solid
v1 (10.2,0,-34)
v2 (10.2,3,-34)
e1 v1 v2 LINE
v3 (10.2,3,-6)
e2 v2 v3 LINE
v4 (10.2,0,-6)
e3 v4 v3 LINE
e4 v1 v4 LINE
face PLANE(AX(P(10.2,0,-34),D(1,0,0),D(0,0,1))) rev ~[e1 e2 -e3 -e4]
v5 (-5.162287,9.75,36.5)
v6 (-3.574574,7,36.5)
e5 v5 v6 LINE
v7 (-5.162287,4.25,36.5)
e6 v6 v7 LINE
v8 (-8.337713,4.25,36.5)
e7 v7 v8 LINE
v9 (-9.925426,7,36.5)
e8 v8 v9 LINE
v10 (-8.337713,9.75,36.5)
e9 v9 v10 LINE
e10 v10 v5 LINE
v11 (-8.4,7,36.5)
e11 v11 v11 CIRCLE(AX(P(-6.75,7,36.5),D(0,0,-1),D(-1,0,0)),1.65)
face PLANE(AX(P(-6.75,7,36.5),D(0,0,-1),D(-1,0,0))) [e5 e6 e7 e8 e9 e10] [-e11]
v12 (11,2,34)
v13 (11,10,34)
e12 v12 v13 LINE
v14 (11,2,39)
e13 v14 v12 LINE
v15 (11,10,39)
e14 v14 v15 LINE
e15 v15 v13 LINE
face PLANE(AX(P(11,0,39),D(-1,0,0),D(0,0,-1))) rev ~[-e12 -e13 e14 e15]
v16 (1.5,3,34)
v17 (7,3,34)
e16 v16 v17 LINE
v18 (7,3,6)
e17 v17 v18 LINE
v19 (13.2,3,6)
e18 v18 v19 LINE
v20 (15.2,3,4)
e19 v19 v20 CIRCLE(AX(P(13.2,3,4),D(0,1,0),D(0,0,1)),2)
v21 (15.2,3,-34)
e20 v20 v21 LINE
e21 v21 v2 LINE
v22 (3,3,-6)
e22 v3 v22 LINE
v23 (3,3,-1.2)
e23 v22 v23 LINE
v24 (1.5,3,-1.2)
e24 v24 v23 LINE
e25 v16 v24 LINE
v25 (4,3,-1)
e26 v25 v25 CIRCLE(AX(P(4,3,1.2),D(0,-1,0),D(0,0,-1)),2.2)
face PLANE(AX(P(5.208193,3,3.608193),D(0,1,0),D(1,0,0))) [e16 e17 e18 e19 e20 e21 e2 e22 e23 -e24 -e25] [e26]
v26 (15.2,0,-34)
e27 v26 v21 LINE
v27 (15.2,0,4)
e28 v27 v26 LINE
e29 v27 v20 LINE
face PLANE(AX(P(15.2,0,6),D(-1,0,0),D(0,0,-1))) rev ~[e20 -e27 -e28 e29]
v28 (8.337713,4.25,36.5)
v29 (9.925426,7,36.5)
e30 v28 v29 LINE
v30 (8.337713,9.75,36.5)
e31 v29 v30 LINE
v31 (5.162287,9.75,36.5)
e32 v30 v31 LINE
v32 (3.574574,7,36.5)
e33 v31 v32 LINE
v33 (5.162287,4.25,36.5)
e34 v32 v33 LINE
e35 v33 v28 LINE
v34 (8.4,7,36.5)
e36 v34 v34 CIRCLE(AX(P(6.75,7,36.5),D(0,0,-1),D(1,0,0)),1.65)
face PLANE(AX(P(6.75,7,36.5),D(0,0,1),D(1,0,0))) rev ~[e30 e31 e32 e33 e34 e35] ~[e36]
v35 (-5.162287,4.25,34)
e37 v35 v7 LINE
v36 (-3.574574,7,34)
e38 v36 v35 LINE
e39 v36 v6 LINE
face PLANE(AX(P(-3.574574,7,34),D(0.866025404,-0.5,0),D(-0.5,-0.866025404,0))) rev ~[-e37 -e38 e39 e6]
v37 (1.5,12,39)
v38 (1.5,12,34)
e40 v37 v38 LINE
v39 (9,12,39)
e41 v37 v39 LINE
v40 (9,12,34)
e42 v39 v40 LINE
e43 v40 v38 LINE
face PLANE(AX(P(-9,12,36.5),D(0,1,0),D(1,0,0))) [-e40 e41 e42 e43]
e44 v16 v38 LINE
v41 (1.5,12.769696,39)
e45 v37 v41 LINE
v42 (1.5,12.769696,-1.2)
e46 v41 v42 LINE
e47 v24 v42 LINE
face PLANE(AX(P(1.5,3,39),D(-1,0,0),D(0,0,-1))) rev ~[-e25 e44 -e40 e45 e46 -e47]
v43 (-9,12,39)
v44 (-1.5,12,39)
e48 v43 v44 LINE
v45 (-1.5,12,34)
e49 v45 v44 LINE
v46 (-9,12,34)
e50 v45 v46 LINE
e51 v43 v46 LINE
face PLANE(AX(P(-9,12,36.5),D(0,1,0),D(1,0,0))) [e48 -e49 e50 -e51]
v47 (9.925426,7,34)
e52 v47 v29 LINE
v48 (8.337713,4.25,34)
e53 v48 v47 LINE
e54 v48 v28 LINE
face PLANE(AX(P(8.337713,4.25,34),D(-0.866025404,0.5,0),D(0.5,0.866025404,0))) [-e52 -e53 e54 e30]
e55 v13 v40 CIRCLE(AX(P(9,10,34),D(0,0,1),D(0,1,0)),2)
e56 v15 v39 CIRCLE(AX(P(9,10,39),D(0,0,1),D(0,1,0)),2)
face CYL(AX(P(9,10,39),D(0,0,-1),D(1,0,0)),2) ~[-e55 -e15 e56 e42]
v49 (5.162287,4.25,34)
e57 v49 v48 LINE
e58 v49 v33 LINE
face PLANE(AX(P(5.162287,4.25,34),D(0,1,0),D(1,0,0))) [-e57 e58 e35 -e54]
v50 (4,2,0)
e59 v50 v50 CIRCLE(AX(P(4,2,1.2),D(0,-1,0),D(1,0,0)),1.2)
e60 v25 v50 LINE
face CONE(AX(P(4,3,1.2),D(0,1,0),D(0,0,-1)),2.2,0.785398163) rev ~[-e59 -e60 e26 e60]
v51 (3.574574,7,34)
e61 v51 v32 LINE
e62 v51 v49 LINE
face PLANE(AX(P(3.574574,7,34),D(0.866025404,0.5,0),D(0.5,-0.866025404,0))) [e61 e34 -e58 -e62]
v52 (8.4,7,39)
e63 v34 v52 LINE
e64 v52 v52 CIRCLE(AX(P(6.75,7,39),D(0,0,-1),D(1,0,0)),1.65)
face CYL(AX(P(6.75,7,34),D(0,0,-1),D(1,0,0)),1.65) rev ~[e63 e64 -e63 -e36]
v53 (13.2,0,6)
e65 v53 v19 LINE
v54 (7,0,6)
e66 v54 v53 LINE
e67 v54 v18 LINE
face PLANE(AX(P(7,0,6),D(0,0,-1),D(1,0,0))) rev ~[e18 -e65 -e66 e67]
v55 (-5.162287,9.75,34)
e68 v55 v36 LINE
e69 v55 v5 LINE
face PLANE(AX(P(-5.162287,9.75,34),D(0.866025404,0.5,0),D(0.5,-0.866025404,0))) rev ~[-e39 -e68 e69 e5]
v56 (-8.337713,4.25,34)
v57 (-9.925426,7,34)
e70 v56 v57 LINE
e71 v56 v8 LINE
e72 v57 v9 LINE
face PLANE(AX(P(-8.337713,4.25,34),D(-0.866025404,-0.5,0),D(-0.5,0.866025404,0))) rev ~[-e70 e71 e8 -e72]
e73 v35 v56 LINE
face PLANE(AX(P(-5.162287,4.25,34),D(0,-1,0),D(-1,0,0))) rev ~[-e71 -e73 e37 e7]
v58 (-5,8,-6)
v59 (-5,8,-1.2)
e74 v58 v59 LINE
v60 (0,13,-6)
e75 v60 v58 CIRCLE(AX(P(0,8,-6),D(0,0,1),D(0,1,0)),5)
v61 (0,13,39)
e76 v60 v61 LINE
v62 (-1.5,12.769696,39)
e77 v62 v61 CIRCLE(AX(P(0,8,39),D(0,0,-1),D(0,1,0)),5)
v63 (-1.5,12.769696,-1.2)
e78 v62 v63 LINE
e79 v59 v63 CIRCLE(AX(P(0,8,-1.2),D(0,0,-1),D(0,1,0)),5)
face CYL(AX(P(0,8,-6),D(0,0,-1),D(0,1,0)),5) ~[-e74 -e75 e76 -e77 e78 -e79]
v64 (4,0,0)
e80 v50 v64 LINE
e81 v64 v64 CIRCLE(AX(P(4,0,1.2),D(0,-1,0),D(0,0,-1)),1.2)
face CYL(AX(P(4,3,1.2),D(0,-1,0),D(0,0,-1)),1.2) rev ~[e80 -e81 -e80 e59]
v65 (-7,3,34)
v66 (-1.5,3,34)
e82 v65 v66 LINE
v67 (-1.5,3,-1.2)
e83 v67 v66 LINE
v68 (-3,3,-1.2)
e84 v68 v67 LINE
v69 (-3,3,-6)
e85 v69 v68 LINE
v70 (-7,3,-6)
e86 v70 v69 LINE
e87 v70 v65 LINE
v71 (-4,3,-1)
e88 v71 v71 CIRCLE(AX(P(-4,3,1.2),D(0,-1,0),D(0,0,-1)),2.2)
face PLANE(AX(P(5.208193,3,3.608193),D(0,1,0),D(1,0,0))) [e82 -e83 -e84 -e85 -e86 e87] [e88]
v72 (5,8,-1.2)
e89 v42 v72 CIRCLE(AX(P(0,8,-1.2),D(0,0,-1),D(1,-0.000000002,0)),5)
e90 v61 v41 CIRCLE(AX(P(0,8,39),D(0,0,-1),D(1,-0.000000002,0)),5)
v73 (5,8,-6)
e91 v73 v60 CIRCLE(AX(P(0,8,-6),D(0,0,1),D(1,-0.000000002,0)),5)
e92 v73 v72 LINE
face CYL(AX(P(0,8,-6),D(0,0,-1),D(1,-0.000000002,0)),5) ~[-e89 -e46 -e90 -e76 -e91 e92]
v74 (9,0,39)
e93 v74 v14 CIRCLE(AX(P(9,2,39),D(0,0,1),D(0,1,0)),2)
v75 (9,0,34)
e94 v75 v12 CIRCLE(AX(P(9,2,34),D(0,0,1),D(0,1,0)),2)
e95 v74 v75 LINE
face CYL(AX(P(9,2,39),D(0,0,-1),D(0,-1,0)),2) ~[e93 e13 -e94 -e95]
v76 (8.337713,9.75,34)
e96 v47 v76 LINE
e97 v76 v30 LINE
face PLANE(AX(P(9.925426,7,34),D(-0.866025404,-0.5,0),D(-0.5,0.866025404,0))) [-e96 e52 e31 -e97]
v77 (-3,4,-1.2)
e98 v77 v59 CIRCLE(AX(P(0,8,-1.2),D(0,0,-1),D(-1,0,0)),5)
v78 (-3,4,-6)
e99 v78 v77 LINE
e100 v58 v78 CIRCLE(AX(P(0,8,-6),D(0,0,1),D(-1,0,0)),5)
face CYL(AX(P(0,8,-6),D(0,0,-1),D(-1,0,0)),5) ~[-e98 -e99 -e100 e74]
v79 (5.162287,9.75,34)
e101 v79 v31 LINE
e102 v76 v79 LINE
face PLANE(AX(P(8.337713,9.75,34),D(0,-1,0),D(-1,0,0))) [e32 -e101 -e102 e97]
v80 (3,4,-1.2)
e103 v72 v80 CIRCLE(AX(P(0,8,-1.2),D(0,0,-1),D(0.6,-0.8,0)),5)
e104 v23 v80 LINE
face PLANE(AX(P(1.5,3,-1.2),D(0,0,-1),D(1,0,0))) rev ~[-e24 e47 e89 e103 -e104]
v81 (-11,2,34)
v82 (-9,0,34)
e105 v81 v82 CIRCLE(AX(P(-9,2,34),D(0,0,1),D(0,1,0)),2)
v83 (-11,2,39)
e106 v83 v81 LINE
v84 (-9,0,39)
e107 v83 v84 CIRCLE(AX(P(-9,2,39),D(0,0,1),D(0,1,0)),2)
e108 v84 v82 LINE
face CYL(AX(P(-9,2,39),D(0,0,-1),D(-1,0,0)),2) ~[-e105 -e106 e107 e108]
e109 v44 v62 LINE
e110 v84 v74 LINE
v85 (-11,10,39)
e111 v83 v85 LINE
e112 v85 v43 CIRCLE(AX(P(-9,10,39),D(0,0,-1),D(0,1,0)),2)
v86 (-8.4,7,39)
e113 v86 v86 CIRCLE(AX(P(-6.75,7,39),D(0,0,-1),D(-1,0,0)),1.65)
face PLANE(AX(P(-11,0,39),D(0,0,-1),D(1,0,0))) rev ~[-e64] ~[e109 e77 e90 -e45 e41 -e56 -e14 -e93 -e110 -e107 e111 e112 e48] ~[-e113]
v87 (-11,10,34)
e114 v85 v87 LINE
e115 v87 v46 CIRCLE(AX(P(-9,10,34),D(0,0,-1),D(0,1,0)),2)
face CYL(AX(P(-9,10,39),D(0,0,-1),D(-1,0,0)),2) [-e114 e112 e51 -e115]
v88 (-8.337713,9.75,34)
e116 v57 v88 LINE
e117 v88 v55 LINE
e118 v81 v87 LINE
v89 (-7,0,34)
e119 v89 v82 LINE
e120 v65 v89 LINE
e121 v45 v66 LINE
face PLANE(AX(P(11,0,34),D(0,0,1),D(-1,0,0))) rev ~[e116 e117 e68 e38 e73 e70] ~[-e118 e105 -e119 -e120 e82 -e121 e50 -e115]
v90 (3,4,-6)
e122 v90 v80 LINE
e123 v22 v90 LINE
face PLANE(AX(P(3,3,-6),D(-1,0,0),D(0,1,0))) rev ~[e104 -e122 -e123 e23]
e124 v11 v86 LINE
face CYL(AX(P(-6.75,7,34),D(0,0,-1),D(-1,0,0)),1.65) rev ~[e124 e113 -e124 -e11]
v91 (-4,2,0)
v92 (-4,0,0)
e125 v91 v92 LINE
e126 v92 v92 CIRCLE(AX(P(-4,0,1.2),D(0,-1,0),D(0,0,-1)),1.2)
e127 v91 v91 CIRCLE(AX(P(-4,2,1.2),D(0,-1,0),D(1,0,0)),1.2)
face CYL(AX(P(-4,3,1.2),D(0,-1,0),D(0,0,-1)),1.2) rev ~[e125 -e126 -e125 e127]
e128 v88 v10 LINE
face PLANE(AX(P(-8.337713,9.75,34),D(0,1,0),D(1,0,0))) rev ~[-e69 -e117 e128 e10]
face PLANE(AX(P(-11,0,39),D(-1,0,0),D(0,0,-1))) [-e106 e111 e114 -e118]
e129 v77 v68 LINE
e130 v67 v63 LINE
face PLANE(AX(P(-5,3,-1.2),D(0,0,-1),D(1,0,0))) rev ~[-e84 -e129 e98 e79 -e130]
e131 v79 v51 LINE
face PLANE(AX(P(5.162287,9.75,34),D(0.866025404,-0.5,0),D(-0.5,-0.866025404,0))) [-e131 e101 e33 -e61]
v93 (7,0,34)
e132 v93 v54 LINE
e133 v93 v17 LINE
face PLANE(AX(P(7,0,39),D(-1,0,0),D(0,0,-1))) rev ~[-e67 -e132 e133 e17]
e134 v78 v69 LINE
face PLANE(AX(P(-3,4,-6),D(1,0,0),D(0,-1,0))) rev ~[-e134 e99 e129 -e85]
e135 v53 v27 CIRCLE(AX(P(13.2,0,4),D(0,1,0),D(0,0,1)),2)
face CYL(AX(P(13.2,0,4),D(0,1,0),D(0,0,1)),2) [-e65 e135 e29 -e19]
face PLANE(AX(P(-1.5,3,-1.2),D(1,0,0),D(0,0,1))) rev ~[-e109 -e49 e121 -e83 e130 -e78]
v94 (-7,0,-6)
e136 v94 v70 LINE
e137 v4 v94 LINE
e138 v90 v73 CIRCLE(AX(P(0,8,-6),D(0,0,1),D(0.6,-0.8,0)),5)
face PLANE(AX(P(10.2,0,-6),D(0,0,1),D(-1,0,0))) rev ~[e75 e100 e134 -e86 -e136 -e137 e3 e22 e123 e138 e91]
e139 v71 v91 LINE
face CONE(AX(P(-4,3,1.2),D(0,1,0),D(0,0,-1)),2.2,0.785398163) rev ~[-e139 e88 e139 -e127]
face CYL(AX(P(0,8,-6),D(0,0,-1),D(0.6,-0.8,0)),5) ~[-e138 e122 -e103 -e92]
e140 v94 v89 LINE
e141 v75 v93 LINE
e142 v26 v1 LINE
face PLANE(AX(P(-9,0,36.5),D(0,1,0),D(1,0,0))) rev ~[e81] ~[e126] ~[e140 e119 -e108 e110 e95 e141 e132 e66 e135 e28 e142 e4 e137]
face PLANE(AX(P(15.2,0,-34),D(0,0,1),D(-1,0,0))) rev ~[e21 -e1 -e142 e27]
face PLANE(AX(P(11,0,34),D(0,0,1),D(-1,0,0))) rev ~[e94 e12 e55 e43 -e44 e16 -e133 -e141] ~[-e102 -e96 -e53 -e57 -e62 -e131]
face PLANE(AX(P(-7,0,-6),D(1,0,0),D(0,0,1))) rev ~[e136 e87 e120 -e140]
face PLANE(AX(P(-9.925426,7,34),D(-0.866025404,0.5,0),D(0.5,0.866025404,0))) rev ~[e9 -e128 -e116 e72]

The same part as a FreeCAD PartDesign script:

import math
import FreeCAD as App
import Part
import Sketcher

V = App.Vector
Q = App.Units.Quantity


def edges_at(feature, points):
    """Names of the edges that pass closest to the given points."""
    edges = feature.Shape.Edges
    near = lambda p: min(range(len(edges)), key=lambda i: edges[i].distToShape(Part.Vertex(*p))[0])
    return sorted({f"Edge{near(p) + 1}" for p in points})


def add_polygon(sketch, points):
    """Adds a closed chain of lines whose ends are joined by coincident constraints."""
    first, n = sketch.GeometryCount, len(points)
    for a, b in zip(points, points[1:] + points[:1]):
        sketch.addGeometry(Part.LineSegment(App.Vector(*a, 0), App.Vector(*b, 0)), False)
    for i in range(n):
        sketch.addConstraint(Sketcher.Constraint("Coincident", first + i, 2, first + (i + 1) % n, 1))

doc = App.newDocument("Part")
body = doc.addObject("PartDesign::Body", "Body")

sketch1 = body.newObject("Sketcher::SketchObject", "Sketch")
sketch1.AttachmentSupport = (doc.getObject("XZ_Plane"), [""])
sketch1.MapMode = "FlatFace"
add_polygon(sketch1, [(7, 6), (15.2, 6), (15.2, -34), (10.2, -34), (10.2, -6), (-7, -6), (-7, 39), (7, 39)])
sketch1.addGeometry(Part.Circle(V(-4, 1.2, 0), V(0, 0, 1), 1.15), False)
sketch1.addGeometry(Part.Circle(V(4, 1.2, 0), V(0, 0, 1), 1.15), False)
sketch1.addConstraint(Sketcher.Constraint("Horizontal", 0))
sketch1.addConstraint(Sketcher.Constraint("Vertical", 1))
sketch1.addConstraint(Sketcher.Constraint("Horizontal", 2))
sketch1.addConstraint(Sketcher.Constraint("Vertical", 3))
sketch1.addConstraint(Sketcher.Constraint("Horizontal", 4))
sketch1.addConstraint(Sketcher.Constraint("Vertical", 5))
sketch1.addConstraint(Sketcher.Constraint("Horizontal", 6))
sketch1.addConstraint(Sketcher.Constraint("Vertical", 7))
sketch1.addConstraint(Sketcher.Constraint("Equal", 8, 9))
sketch1.addConstraint(Sketcher.Constraint("Symmetric", 4, 2, 7, 2, -1, 1))
sketch1.addConstraint(Sketcher.Constraint("Symmetric", 8, 3, 9, 3, -2))
sketch1.addConstraint(Sketcher.Constraint("Diameter", 8, 2.3))
sketch1.addConstraint(Sketcher.Constraint("DistanceX", 2, 2, 2, 1, 5.0))
sketch1.addConstraint(Sketcher.Constraint("DistanceX", 6, 1, 6, 2, 14.0))
sketch1.addConstraint(Sketcher.Constraint("DistanceY", 1, 2, 1, 1, 40.0))
sketch1.addConstraint(Sketcher.Constraint("DistanceY", 3, 1, 3, 2, 28.0))
sketch1.addConstraint(Sketcher.Constraint("DistanceY", 5, 1, 5, 2, 45.0))
sketch1.addConstraint(Sketcher.Constraint("DistanceX", 0, 1, 0, 2, 8.2))
sketch1.addConstraint(Sketcher.Constraint("DistanceX", 8, 3, -1, 1, 4.0))
sketch1.addConstraint(Sketcher.Constraint("DistanceY", -1, 1, 8, 3, 1.2))
pad1 = body.newObject("PartDesign::Pad", "Pad")
pad1.Profile = sketch1
pad1.Length = 3
pad1.Reversed = True

sketch2 = body.newObject("Sketcher::SketchObject", "Sketch001")
sketch2.AttachmentSupport = (doc.getObject("XZ_Plane"), [""])
sketch2.MapMode = "FlatFace"
sketch2.AttachmentOffset = App.Placement(V(0, 0, -3), App.Rotation())
add_polygon(sketch2, [(-5, -1.2), (-1.5, -1.2), (-1.5, 39), (1.5, 39), (1.5, -1.2), (5, -1.2), (5, -6), (-5, -6)])
sketch2.addConstraint(Sketcher.Constraint("Horizontal", 0))
sketch2.addConstraint(Sketcher.Constraint("Vertical", 1))
sketch2.addConstraint(Sketcher.Constraint("Horizontal", 2))
sketch2.addConstraint(Sketcher.Constraint("Vertical", 3))
sketch2.addConstraint(Sketcher.Constraint("Horizontal", 4))
sketch2.addConstraint(Sketcher.Constraint("Vertical", 5))
sketch2.addConstraint(Sketcher.Constraint("Horizontal", 6))
sketch2.addConstraint(Sketcher.Constraint("Vertical", 7))
sketch2.addConstraint(Sketcher.Constraint("Symmetric", 0, 2, 3, 2, -2))
sketch2.addConstraint(Sketcher.Constraint("Equal", 0, 4))
sketch2.addConstraint(Sketcher.Constraint("DistanceX", 2, 1, 2, 2, 3.0))
sketch2.addConstraint(Sketcher.Constraint("DistanceX", 6, 2, 6, 1, 10.0))
sketch2.addConstraint(Sketcher.Constraint("DistanceY", 1, 1, 1, 2, 40.2))
sketch2.addConstraint(Sketcher.Constraint("DistanceY", 5, 2, 5, 1, 4.8))
sketch2.addConstraint(Sketcher.Constraint("DistanceY", -1, 1, 1, 2, 39.0))
pad2 = body.newObject("PartDesign::Pad", "Pad001")
pad2.Profile = sketch2
pad2.Length = 10
pad2.Reversed = True

sketch3 = body.newObject("Sketcher::SketchObject", "Sketch002")
sketch3.AttachmentSupport = (doc.getObject("XZ_Plane"), [""])
sketch3.MapMode = "FlatFace"
sketch3.AttachmentOffset = App.Placement(V(0, 0, -3), App.Rotation())
sketch3.addGeometry(Part.Circle(V(-4, 1.2, 0), V(0, 0, 1), 1.2), False)
sketch3.addGeometry(Part.Circle(V(4, 1.2, 0), V(0, 0, 1), 1.2), False)
sketch3.addConstraint(Sketcher.Constraint("Equal", 0, 1))
sketch3.addConstraint(Sketcher.Constraint("Symmetric", 0, 3, 1, 3, -2))
sketch3.addConstraint(Sketcher.Constraint("Diameter", 0, 2.4))
sketch3.addConstraint(Sketcher.Constraint("DistanceX", 0, 3, -1, 1, 4.0))
sketch3.addConstraint(Sketcher.Constraint("DistanceY", -1, 1, 0, 3, 1.2))
doc.recompute()
hole = body.newObject("PartDesign::Hole", "Hole")
hole.Profile = sketch3
hole.ThreadType = "None"
hole.Diameter = 2.4
hole.DepthType = "ThroughAll"
hole.HoleCutType = "Countersink"
hole.HoleCutDiameter = 4.4
hole.HoleCutCountersinkAngle = 90
hole.Reversed = True

sketch4 = body.newObject("Sketcher::SketchObject", "Sketch003")
sketch4.AttachmentSupport = (doc.getObject("XY_Plane"), [""])
sketch4.MapMode = "FlatFace"
sketch4.AttachmentOffset = App.Placement(V(0, 0, -6), App.Rotation())
sketch4.addGeometry(Part.LineSegment(V(5, 13, 0), V(5, 8, 0)), False)
sketch4.addGeometry(Part.ArcOfCircle(Part.Circle(V(0, 8, 0), V(0, 0, 1), 5), math.radians(0), math.radians(90)), False)
sketch4.addGeometry(Part.LineSegment(V(0, 13, 0), V(5, 13, 0)), False)
sketch4.addGeometry(Part.LineSegment(V(-5, 13, 0), V(0, 13, 0)), False)
sketch4.addGeometry(Part.ArcOfCircle(Part.Circle(V(0, 8, 0), V(0, 0, 1), 5), math.radians(90), math.radians(180)), False)
sketch4.addGeometry(Part.LineSegment(V(-5, 8, 0), V(-5, 13, 0)), False)
sketch4.addGeometry(Part.LineSegment(V(-5, 3, 0), V(-5, 8, 0)), False)
sketch4.addGeometry(Part.ArcOfCircle(Part.Circle(V(0, 8, 0), V(0, 0, 1), 5), math.radians(-180), math.radians(-126.869898)), False)
sketch4.addGeometry(Part.LineSegment(V(-3, 4, 0), V(-3, 3, 0)), False)
sketch4.addGeometry(Part.LineSegment(V(-3, 3, 0), V(-5, 3, 0)), False)
sketch4.addGeometry(Part.LineSegment(V(5, 3, 0), V(3, 3, 0)), False)
sketch4.addGeometry(Part.LineSegment(V(3, 3, 0), V(3, 4, 0)), False)
sketch4.addGeometry(Part.ArcOfCircle(Part.Circle(V(0, 8, 0), V(0, 0, 1), 5), math.radians(-53.130102), math.radians(0)), False)
sketch4.addGeometry(Part.LineSegment(V(5, 8, 0), V(5, 3, 0)), False)
sketch4.addConstraint(Sketcher.Constraint("Tangent", 0, 2, 1, 1))
sketch4.addConstraint(Sketcher.Constraint("Tangent", 1, 2, 2, 1))
sketch4.addConstraint(Sketcher.Constraint("Coincident", 2, 2, 0, 1))
sketch4.addConstraint(Sketcher.Constraint("Tangent", 3, 2, 4, 1))
sketch4.addConstraint(Sketcher.Constraint("Tangent", 4, 2, 5, 1))
sketch4.addConstraint(Sketcher.Constraint("Coincident", 5, 2, 3, 1))
sketch4.addConstraint(Sketcher.Constraint("Tangent", 6, 2, 7, 1))
sketch4.addConstraint(Sketcher.Constraint("Coincident", 7, 2, 8, 1))
sketch4.addConstraint(Sketcher.Constraint("Coincident", 8, 2, 9, 1))
sketch4.addConstraint(Sketcher.Constraint("Coincident", 9, 2, 6, 1))
sketch4.addConstraint(Sketcher.Constraint("Coincident", 10, 2, 11, 1))
sketch4.addConstraint(Sketcher.Constraint("Coincident", 11, 2, 12, 1))
sketch4.addConstraint(Sketcher.Constraint("Tangent", 12, 2, 13, 1))
sketch4.addConstraint(Sketcher.Constraint("Coincident", 13, 2, 10, 1))
sketch4.addConstraint(Sketcher.Constraint("Vertical", 0))
sketch4.addConstraint(Sketcher.Constraint("Horizontal", 2))
sketch4.addConstraint(Sketcher.Constraint("Horizontal", 3))
sketch4.addConstraint(Sketcher.Constraint("Vertical", 5))
sketch4.addConstraint(Sketcher.Constraint("Vertical", 6))
sketch4.addConstraint(Sketcher.Constraint("Vertical", 8))
sketch4.addConstraint(Sketcher.Constraint("Horizontal", 9))
sketch4.addConstraint(Sketcher.Constraint("Horizontal", 10))
sketch4.addConstraint(Sketcher.Constraint("Vertical", 11))
sketch4.addConstraint(Sketcher.Constraint("Vertical", 13))
sketch4.addConstraint(Sketcher.Constraint("Coincident", 4, 3, 1, 3))
sketch4.addConstraint(Sketcher.Constraint("Coincident", 7, 3, 1, 3))
sketch4.addConstraint(Sketcher.Constraint("Coincident", 12, 3, 1, 3))
sketch4.addConstraint(Sketcher.Constraint("Equal", 1, 4))
sketch4.addConstraint(Sketcher.Constraint("Equal", 4, 7))
sketch4.addConstraint(Sketcher.Constraint("Equal", 7, 12))
sketch4.addConstraint(Sketcher.Constraint("Symmetric", 8, 2, 10, 2, -2))
sketch4.addConstraint(Sketcher.Constraint("PointOnObject", 1, 3, -2))
sketch4.addConstraint(Sketcher.Constraint("Equal", 5, 6))
sketch4.addConstraint(Sketcher.Constraint("Radius", 1, 5.0))
sketch4.addConstraint(Sketcher.Constraint("DistanceX", 9, 2, 9, 1, 2.0))
sketch4.addConstraint(Sketcher.Constraint("DistanceY", -1, 1, 1, 3, 8.0))
pocket1 = body.newObject("PartDesign::Pocket", "Pocket")
pocket1.Profile = sketch4
pocket1.Type = "ThroughAll"
pocket1.Reversed = True

sketch5 = body.newObject("Sketcher::SketchObject", "Sketch004")
sketch5.AttachmentSupport = (doc.getObject("XZ_Plane"), [""])
sketch5.MapMode = "FlatFace"
add_polygon(sketch5, [(-11, 34), (-11, 39), (11, 39), (11, 34)])
sketch5.addConstraint(Sketcher.Constraint("Vertical", 0))
sketch5.addConstraint(Sketcher.Constraint("Horizontal", 1))
sketch5.addConstraint(Sketcher.Constraint("Vertical", 2))
sketch5.addConstraint(Sketcher.Constraint("Horizontal", 3))
sketch5.addConstraint(Sketcher.Constraint("DistanceX", 1, 1, 1, 2, 22.0))
sketch5.addConstraint(Sketcher.Constraint("DistanceY", 0, 1, 0, 2, 5.0))
sketch5.addConstraint(Sketcher.Constraint("DistanceX", 0, 2, -1, 1, 11.0))
sketch5.addConstraint(Sketcher.Constraint("DistanceY", -1, 1, 0, 2, 39.0))
pad3 = body.newObject("PartDesign::Pad", "Pad002")
pad3.Profile = sketch5
pad3.Length = 12
pad3.Reversed = True

sketch6 = body.newObject("Sketcher::SketchObject", "Sketch005")
sketch6.AttachmentSupport = (doc.getObject("XY_Plane"), [""])
sketch6.MapMode = "FlatFace"
sketch6.AttachmentOffset = App.Placement(V(0, 0, 34), App.Rotation())
sketch6.addGeometry(Part.Circle(V(-6.75, 7, 0), V(0, 0, 1), 1.65), False)
sketch6.addGeometry(Part.Circle(V(6.75, 7, 0), V(0, 0, 1), 1.65), False)
sketch6.addConstraint(Sketcher.Constraint("Equal", 0, 1))
sketch6.addConstraint(Sketcher.Constraint("Symmetric", 0, 3, 1, 3, -2))
sketch6.addConstraint(Sketcher.Constraint("Diameter", 0, 3.3))
sketch6.addConstraint(Sketcher.Constraint("DistanceY", -1, 1, 0, 3, 7.0))
sketch6.addConstraint(Sketcher.Constraint("DistanceX", 0, 3, 1, 3, 13.5))
pocket2 = body.newObject("PartDesign::Pocket", "Pocket001")
pocket2.Profile = sketch6
pocket2.Type = "ThroughAll"
pocket2.Reversed = True

sketch7 = body.newObject("Sketcher::SketchObject", "Sketch006")
sketch7.AttachmentSupport = (doc.getObject("XY_Plane"), [""])
sketch7.MapMode = "FlatFace"
sketch7.AttachmentOffset = App.Placement(V(0, 0, 34), App.Rotation())
add_polygon(sketch7, [(-5.162287, 9.75), (-3.574574, 7), (-5.162287, 4.25), (-8.337713, 4.25), (-9.925426, 7), (-8.337713, 9.75)])
add_polygon(sketch7, [(3.574574, 7), (5.162287, 9.75), (8.337713, 9.75), (9.925426, 7), (8.337713, 4.25), (5.162287, 4.25)])
sketch7.addConstraint(Sketcher.Constraint("Horizontal", 2))
sketch7.addConstraint(Sketcher.Constraint("Horizontal", 5))
sketch7.addConstraint(Sketcher.Constraint("Horizontal", 7))
sketch7.addConstraint(Sketcher.Constraint("Horizontal", 10))
sketch7.addConstraint(Sketcher.Constraint("Symmetric", 5, 2, 6, 2, -2))
sketch7.addConstraint(Sketcher.Constraint("Symmetric", 3, 2, 8, 2, -2))
sketch7.addConstraint(Sketcher.Constraint("Symmetric", 2, 2, 9, 2, -2))
sketch7.addConstraint(Sketcher.Constraint("Symmetric", 0, 2, 11, 2, -2))
sketch7.addConstraint(Sketcher.Constraint("Parallel", 0, 3))
sketch7.addConstraint(Sketcher.Constraint("Parallel", 1, 4))
sketch7.addConstraint(Sketcher.Constraint("Parallel", 4, 6))
sketch7.addConstraint(Sketcher.Constraint("Parallel", 3, 8))
sketch7.addConstraint(Sketcher.Constraint("Parallel", 8, 11))
sketch7.addConstraint(Sketcher.Constraint("Horizontal", 0, 2, 3, 2))
sketch7.addConstraint(Sketcher.Constraint("Vertical", 2, 2, 4, 2))
sketch7.addConstraint(Sketcher.Constraint("Angle", 0, Q("-60 deg")))
sketch7.addConstraint(Sketcher.Constraint("DistanceY", -1, 1, 0, 2, 7.0))
sketch7.addConstraint(Sketcher.Constraint("DistanceY", 2, 2, 4, 2, 5.5))
sketch7.addConstraint(Sketcher.Constraint("DistanceX", 4, 2, 6, 2, 13.5))
sketch7.addConstraint(Sketcher.Constraint("DistanceX", 2, 2, 2, 1, 3.175426))
pocket3 = body.newObject("PartDesign::Pocket", "Pocket002")
pocket3.Profile = sketch7
pocket3.Length = 2.5
pocket3.Reversed = True
doc.recompute()

fillet = body.newObject("PartDesign::Fillet", "Fillet")
fillet.Base = (pocket3, edges_at(pocket3, [
    (-11, 12, 36.5),
    (-11, 0, 36.5),
    (11, 12, 36.5),
    (11, 0, 36.5),
    (15.2, 1.5, 6),
]))
fillet.Radius = 2

doc.recompute()
